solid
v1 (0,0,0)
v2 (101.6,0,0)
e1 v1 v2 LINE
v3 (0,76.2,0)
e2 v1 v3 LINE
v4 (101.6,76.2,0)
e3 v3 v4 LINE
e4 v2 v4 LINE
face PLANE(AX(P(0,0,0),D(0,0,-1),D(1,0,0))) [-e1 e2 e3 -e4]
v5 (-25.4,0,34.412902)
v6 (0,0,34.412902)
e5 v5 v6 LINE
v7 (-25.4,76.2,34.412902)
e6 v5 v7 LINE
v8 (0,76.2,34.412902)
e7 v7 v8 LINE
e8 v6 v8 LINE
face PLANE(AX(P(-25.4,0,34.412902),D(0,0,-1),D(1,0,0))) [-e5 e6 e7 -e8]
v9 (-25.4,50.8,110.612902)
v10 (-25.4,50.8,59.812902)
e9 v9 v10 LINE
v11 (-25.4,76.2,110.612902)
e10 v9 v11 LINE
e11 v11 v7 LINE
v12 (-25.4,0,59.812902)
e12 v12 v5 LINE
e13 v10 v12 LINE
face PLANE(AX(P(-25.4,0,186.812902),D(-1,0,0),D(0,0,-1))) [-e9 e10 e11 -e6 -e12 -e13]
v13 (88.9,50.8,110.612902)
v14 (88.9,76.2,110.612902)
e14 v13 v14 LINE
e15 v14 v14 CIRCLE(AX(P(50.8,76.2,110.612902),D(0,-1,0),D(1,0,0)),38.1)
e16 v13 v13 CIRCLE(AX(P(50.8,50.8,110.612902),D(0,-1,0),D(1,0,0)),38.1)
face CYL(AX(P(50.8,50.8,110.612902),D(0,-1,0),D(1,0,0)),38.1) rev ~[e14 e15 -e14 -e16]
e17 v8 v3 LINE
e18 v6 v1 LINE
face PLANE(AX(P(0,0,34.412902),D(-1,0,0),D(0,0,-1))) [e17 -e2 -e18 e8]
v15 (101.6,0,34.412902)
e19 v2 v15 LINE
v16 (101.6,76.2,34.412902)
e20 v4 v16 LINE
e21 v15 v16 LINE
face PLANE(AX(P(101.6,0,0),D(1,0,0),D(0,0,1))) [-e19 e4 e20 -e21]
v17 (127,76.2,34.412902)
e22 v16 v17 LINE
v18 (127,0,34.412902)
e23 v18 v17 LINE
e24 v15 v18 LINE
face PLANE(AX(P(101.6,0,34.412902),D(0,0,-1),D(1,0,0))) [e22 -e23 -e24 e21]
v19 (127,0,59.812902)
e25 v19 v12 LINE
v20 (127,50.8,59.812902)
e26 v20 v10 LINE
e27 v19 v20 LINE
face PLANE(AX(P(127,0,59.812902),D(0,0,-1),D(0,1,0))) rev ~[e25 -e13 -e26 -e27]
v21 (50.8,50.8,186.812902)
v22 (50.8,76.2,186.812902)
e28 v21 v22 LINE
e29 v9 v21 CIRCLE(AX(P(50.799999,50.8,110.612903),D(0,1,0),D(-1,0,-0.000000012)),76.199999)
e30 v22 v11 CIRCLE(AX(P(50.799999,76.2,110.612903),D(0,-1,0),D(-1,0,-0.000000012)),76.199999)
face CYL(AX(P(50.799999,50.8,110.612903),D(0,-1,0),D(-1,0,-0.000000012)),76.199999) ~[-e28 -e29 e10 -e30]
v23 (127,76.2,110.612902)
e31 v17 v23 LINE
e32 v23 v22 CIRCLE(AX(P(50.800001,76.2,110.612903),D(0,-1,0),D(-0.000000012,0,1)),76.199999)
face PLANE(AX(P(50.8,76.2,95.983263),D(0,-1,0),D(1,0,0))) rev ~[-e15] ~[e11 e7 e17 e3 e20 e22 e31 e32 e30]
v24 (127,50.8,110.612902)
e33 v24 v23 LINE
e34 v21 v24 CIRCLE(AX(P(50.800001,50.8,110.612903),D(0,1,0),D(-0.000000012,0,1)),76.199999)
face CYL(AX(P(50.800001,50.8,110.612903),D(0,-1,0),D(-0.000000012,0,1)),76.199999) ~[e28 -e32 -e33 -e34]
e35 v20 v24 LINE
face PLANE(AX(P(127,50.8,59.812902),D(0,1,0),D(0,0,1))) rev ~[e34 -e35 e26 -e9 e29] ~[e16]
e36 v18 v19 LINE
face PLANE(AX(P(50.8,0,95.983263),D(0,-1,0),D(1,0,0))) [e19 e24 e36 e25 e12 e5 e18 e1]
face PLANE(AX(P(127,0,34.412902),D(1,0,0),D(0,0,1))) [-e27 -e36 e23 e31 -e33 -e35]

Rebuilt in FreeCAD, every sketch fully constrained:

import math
import FreeCAD as App
import Part
import Sketcher
from FreeCAD import Vector
Q = App.Units.Quantity


def add_polygon(sketch, points):
    """Adds a closed chain of lines whose ends are joined by coincident constraints."""
    first, n = sketch.GeometryCount, len(points)
    for a, b in zip(points, points[1:] + points[:1]):
        sketch.addGeometry(Part.LineSegment(App.Vector(*a, 0), App.Vector(*b, 0)), False)
    for i in range(n):
        sketch.addConstraint(Sketcher.Constraint("Coincident", first + i, 2, first + (i + 1) % n, 1))

doc = App.newDocument("Part")
body = doc.addObject("PartDesign::Body", "Body")

# Sketch on XZ plane
sketch1 = body.newObject("Sketcher::SketchObject", "Sketch")
sketch1.AttachmentSupport = (doc.getObject("XZ_Plane"), [""])
sketch1.MapMode = "FlatFace"
add_polygon(sketch1, [(0, 34), (0, 0), (102, 0), (102, 34), (127, 34), (127, 187), (-25, 187), (-25, 34)])  # lines 0-7
sketch1.addConstraint([
    Sketcher.Constraint("Vertical", 0),
    Sketcher.Constraint("Horizontal", 1),
    Sketcher.Constraint("Vertical", 2),
    Sketcher.Constraint("Horizontal", 3),
    Sketcher.Constraint("Vertical", 4),
    Sketcher.Constraint("Horizontal", 5),
    Sketcher.Constraint("Vertical", 6),
    Sketcher.Constraint("Horizontal", 7),
    Sketcher.Constraint("Coincident", 0, 2, -1, 1),
    Sketcher.Constraint("Horizontal", 3, 2, 6, 2),
    Sketcher.Constraint("Equal", 3, 7),
    Sketcher.Constraint("Equal", 5, 4),
    Sketcher.Constraint("DistanceX", 1, 1, 1, 2, Q("4 in")),
    Sketcher.Constraint("DistanceX", 3, 1, 3, 2, Q("1 in")),
    Sketcher.Constraint("DistanceY", -1, 1, 4, 2, Q("186.812902 mm")),
])
pad1 = body.newObject("PartDesign::Pad", "Pad")
pad1.Profile = sketch1
pad1.Length = Q("3 in")
pad1.Reversed = True

# Sketch on YZ plane
sketch2 = body.newObject("Sketcher::SketchObject", "Sketch001")
sketch2.AttachmentSupport = (doc.getObject("YZ_Plane"), [""])
sketch2.MapMode = "FlatFace"
sketch2.AttachmentOffset = App.Placement(Vector(0, 0, 5 * 25.4), App.Rotation())
add_polygon(sketch2, [(0, 187), (0, 60), (51, 60), (51, 187)])  # lines 0-3
sketch2.addConstraint([
    Sketcher.Constraint("Vertical", 0),
    Sketcher.Constraint("Horizontal", 1),
    Sketcher.Constraint("Vertical", 2),
    Sketcher.Constraint("Horizontal", 3),
    Sketcher.Constraint("PointOnObject", 0, 2, -2),
    Sketcher.Constraint("DistanceX", 1, 1, 1, 2, Q("2 in")),
    Sketcher.Constraint("DistanceY", 0, 2, 0, 1, Q("5 in")),
    Sketcher.Constraint("DistanceY", -1, 1, 2, 2, Q("186.812902 mm")),
])
pocket1 = body.newObject("PartDesign::Pocket", "Pocket")
pocket1.Profile = sketch2
pocket1.Type = "ThroughAll"

# Sketch on XZ plane
sketch3 = body.newObject("Sketcher::SketchObject", "Sketch002")
sketch3.AttachmentSupport = (doc.getObject("XZ_Plane"), [""])
sketch3.MapMode = "FlatFace"
sketch3.AttachmentOffset = App.Placement(Vector(0, 0, -2 * 25.4), App.Rotation())
sketch3.addGeometry(Part.Circle(Vector(51, 111, 0), Vector(0, 0, 1), 38), False)
sketch3.addConstraint([
    Sketcher.Constraint("Diameter", 0, Q("3 in")),
    Sketcher.Constraint("DistanceX", -1, 1, 0, 3, Q("2 in")),
    Sketcher.Constraint("DistanceY", -1, 1, 0, 3, Q("110.612902 mm")),
])
pocket2 = body.newObject("PartDesign::Pocket", "Pocket001")
pocket2.Profile = sketch3
pocket2.Type = "ThroughAll"

# Sketch on XZ plane
sketch4 = body.newObject("Sketcher::SketchObject", "Sketch003")
sketch4.AttachmentSupport = (doc.getObject("XZ_Plane"), [""])
sketch4.MapMode = "FlatFace"
sketch4.AttachmentOffset = App.Placement(Vector(0, 0, -2 * 25.4), App.Rotation())
sketch4.addGeometry([
    Part.LineSegment(Vector(51, 187, 0), Vector(-25, 187, 0)),  # 0
    Part.LineSegment(Vector(-25, 187, 0), Vector(-25, 111, 0)),  # 1
    Part.ArcOfCircle(Part.Circle(Vector(51, 111, 0), Vector(0, 0, 1), 76), math.radians(90), math.radians(180)),  # 2
    Part.LineSegment(Vector(127, 187, 0), Vector(51, 187, 0)),  # 3
    Part.ArcOfCircle(Part.Circle(Vector(51, 111, 0), Vector(0, 0, 1), 76), math.radians(0), math.radians(90)),  # 4
    Part.LineSegment(Vector(127, 111, 0), Vector(127, 187, 0)),  # 5
], False)
sketch4.addConstraint([
    Sketcher.Constraint("Coincident", 0, 2, 1, 1),
    Sketcher.Constraint("Tangent", 1, 2, 2, 2),
    Sketcher.Constraint("Tangent", 2, 1, 0, 1),
    Sketcher.Constraint("Tangent", 3, 2, 4, 2),
    Sketcher.Constraint("Tangent", 4, 1, 5, 1),
    Sketcher.Constraint("Coincident", 5, 2, 3, 1),
    Sketcher.Constraint("Horizontal", 0),
    Sketcher.Constraint("Vertical", 1),
    Sketcher.Constraint("Horizontal", 3),
    Sketcher.Constraint("Vertical", 5),
    Sketcher.Constraint("Coincident", 4, 3, 2, 3),
    Sketcher.Constraint("Equal", 2, 4),
    Sketcher.Constraint("Radius", 2, Q("3 in")),
    Sketcher.Constraint("DistanceX", -1, 1, 2, 3, Q("2 in")),
    Sketcher.Constraint("DistanceY", -1, 1, 0, 2, Q("186.812902 mm")),
])
pocket3 = body.newObject("PartDesign::Pocket", "Pocket002")
pocket3.Profile = sketch4
pocket3.Type = "ThroughAll"

doc.recompute()
